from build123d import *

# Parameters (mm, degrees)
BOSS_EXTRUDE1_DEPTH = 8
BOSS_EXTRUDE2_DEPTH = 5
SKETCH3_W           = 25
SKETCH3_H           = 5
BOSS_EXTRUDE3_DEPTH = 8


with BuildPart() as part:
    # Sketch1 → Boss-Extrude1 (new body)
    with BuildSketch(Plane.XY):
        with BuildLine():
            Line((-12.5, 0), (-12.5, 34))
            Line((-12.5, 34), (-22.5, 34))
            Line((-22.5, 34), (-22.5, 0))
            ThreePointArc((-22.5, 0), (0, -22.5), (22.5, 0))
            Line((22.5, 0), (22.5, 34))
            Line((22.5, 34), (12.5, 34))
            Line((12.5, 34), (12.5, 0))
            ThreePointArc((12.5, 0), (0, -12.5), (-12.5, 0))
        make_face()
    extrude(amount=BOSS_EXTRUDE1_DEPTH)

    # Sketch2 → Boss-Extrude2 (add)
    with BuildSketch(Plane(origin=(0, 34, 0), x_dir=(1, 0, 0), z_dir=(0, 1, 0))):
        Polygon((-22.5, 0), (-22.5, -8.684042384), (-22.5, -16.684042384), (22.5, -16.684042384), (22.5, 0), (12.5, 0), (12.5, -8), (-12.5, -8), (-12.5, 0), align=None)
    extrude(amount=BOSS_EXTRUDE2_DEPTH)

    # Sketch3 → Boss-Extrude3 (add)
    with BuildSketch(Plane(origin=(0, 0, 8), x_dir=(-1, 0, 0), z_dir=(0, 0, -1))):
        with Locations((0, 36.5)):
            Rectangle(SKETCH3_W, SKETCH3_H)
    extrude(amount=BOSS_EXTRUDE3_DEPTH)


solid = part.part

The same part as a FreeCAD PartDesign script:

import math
import FreeCAD as App
import Part
import Sketcher
from FreeCAD import Vector

doc = App.newDocument("Part")
params = doc.addObject("Spreadsheet::Sheet", "Params")
for row, (alias, value) in enumerate([
    ("sketch1_radius", "22.5 mm"),
    ("sketch1_radius2", "12.5 mm"),
    ("sketch1_height", "34 mm"),
    ("pad1_length", "8 mm"),
    ("sketch2_width", "45 mm"),
    ("sketch2_width2", "10 mm"),
    ("sketch2_height", "8 mm"),
    ("pad2_length", "5 mm"),
    ("sketch3_width", "25 mm"),
    ("sketch3_height", "5 mm"),
    ("pad3_length", "8 mm"),
], start=1):
    params.set(f"A{row}", alias)
    params.set(f"B{row}", "=" + value)
    params.setAlias(f"B{row}", alias)

body = doc.addObject("PartDesign::Body", "Body")

# Sketch on XY plane
sketch1 = body.newObject("Sketcher::SketchObject", "Sketch")
sketch1.AttachmentSupport = (doc.getObject("XY_Plane"), [""])
sketch1.MapMode = "FlatFace"
sketch1.addGeometry(Part.LineSegment(Vector(-12, 0, 0), Vector(-12, 34, 0)), False)
sketch1.addGeometry(Part.LineSegment(Vector(-12, 34, 0), Vector(-22, 34, 0)), False)
sketch1.addGeometry(Part.LineSegment(Vector(-22, 34, 0), Vector(-22, 0, 0)), False)
sketch1.addGeometry(Part.ArcOfCircle(Part.Circle(Vector(0, 0, 0), Vector(0, 0, 1), 22), math.radians(180), math.radians(360)), False)
sketch1.addGeometry(Part.LineSegment(Vector(22, 0, 0), Vector(22, 34, 0)), False)
sketch1.addGeometry(Part.LineSegment(Vector(22, 34, 0), Vector(12, 34, 0)), False)
sketch1.addGeometry(Part.LineSegment(Vector(12, 34, 0), Vector(12, 0, 0)), False)
sketch1.addGeometry(Part.ArcOfCircle(Part.Circle(Vector(0, 0, 0), Vector(0, 0, 1), 12), math.radians(180), math.radians(360)), False)
sketch1.addConstraint(Sketcher.Constraint("Coincident", 0, 2, 1, 1))
sketch1.addConstraint(Sketcher.Constraint("Coincident", 1, 2, 2, 1))
sketch1.addConstraint(Sketcher.Constraint("Tangent", 2, 2, 3, 1))
sketch1.addConstraint(Sketcher.Constraint("Tangent", 3, 2, 4, 1))
sketch1.addConstraint(Sketcher.Constraint("Coincident", 4, 2, 5, 1))
sketch1.addConstraint(Sketcher.Constraint("Coincident", 5, 2, 6, 1))
sketch1.addConstraint(Sketcher.Constraint("Tangent", 6, 2, 7, 2))
sketch1.addConstraint(Sketcher.Constraint("Tangent", 7, 1, 0, 1))
sketch1.addConstraint(Sketcher.Constraint("Vertical", 0))
sketch1.addConstraint(Sketcher.Constraint("Horizontal", 1))
sketch1.addConstraint(Sketcher.Constraint("Vertical", 2))
sketch1.addConstraint(Sketcher.Constraint("Vertical", 4))
sketch1.addConstraint(Sketcher.Constraint("Horizontal", 5))
sketch1.addConstraint(Sketcher.Constraint("Vertical", 6))
sketch1.addConstraint(Sketcher.Constraint("Coincident", 3, 3, -1, 1))
sketch1.addConstraint(Sketcher.Constraint("Coincident", 7, 3, -1, 1))
sketch1.addConstraint(Sketcher.Constraint("Horizontal", 1, 2, 4, 2))
sketch1.addConstraint(Sketcher.Constraint("Radius", 3, 22.5))
sketch1.addConstraint(Sketcher.Constraint("Radius", 7, 12.5))
sketch1.addConstraint(Sketcher.Constraint("DistanceY", 0, 1, 0, 2, 34.0))
sketch1.setExpression("Constraints[17]", "Params.sketch1_radius")
sketch1.setExpression("Constraints[18]", "Params.sketch1_radius2")
sketch1.setExpression("Constraints[19]", "Params.sketch1_height")
pad1 = body.newObject("PartDesign::Pad", "Pad")
pad1.Profile = sketch1
pad1.setExpression("Length", "Params.pad1_length")

# Sketch on XZ plane
sketch2 = body.newObject("Sketcher::SketchObject", "Sketch001")
sketch2.AttachmentSupport = (doc.getObject("XZ_Plane"), [""])
sketch2.MapMode = "FlatFace"
sketch2.AttachmentOffset = App.Placement(Vector(0, 0, -34), App.Rotation())
sketch2.addGeometry(Part.LineSegment(Vector(-22, 0, 0), Vector(-22, 17, 0)), False)
sketch2.addGeometry(Part.LineSegment(Vector(-22, 17, 0), Vector(22, 17, 0)), False)
sketch2.addGeometry(Part.LineSegment(Vector(22, 17, 0), Vector(22, 0, 0)), False)
sketch2.addGeometry(Part.LineSegment(Vector(22, 0, 0), Vector(12, 0, 0)), False)
sketch2.addGeometry(Part.LineSegment(Vector(12, 0, 0), Vector(12, 8, 0)), False)
sketch2.addGeometry(Part.LineSegment(Vector(12, 8, 0), Vector(-12, 8, 0)), False)
sketch2.addGeometry(Part.LineSegment(Vector(-12, 8, 0), Vector(-12, 0, 0)), False)
sketch2.addGeometry(Part.LineSegment(Vector(-12, 0, 0), Vector(-22, 0, 0)), False)
sketch2.addConstraint(Sketcher.Constraint("Coincident", 0, 2, 1, 1))
sketch2.addConstraint(Sketcher.Constraint("Coincident", 1, 2, 2, 1))
sketch2.addConstraint(Sketcher.Constraint("Coincident", 2, 2, 3, 1))
sketch2.addConstraint(Sketcher.Constraint("Coincident", 3, 2, 4, 1))
sketch2.addConstraint(Sketcher.Constraint("Coincident", 4, 2, 5, 1))
sketch2.addConstraint(Sketcher.Constraint("Coincident", 5, 2, 6, 1))
sketch2.addConstraint(Sketcher.Constraint("Coincident", 6, 2, 7, 1))
sketch2.addConstraint(Sketcher.Constraint("Coincident", 7, 2, 0, 1))
sketch2.addConstraint(Sketcher.Constraint("Vertical", 0))
sketch2.addConstraint(Sketcher.Constraint("Horizontal", 1))
sketch2.addConstraint(Sketcher.Constraint("Vertical", 2))
sketch2.addConstraint(Sketcher.Constraint("Horizontal", 3))
sketch2.addConstraint(Sketcher.Constraint("Vertical", 4))
sketch2.addConstraint(Sketcher.Constraint("Horizontal", 5))
sketch2.addConstraint(Sketcher.Constraint("Vertical", 6))
sketch2.addConstraint(Sketcher.Constraint("Horizontal", 7))
sketch2.addConstraint(Sketcher.Constraint("Symmetric", 3, 2, 6, 2, -1, 1))
sketch2.addConstraint(Sketcher.Constraint("Symmetric", 2, 2, 7, 2, -2))
sketch2.addConstraint(Sketcher.Constraint("DistanceX", 1, 1, 1, 2, 45.0))
sketch2.addConstraint(Sketcher.Constraint("DistanceX", 3, 2, 3, 1, 10.0))
sketch2.addConstraint(Sketcher.Constraint("DistanceY", 4, 1, 4, 2, 8.0))
sketch2.addConstraint(Sketcher.Constraint("DistanceY", 0, 1, 0, 2, 16.684042))
sketch2.setExpression("Constraints[18]", "Params.sketch2_width")
sketch2.setExpression("Constraints[19]", "Params.sketch2_width2")
sketch2.setExpression("Constraints[20]", "Params.sketch2_height")
pad2 = body.newObject("PartDesign::Pad", "Pad001")
pad2.Profile = sketch2
pad2.setExpression("Length", "Params.pad2_length")
pad2.Reversed = True

# Sketch on XY plane
sketch3 = body.newObject("Sketcher::SketchObject", "Sketch002")
sketch3.AttachmentSupport = (doc.getObject("XY_Plane"), [""])
sketch3.MapMode = "FlatFace"
sketch3.AttachmentOffset = App.Placement(Vector(0, 0, 8), App.Rotation())
sketch3.addGeometry(Part.LineSegment(Vector(12, 39, 0), Vector(12, 34, 0)), False)
sketch3.addGeometry(Part.LineSegment(Vector(12, 34, 0), Vector(-12, 34, 0)), False)
sketch3.addGeometry(Part.LineSegment(Vector(-12, 34, 0), Vector(-12, 39, 0)), False)
sketch3.addGeometry(Part.LineSegment(Vector(-12, 39, 0), Vector(12, 39, 0)), False)
sketch3.addConstraint(Sketcher.Constraint("Coincident", 0, 2, 1, 1))
sketch3.addConstraint(Sketcher.Constraint("Coincident", 1, 2, 2, 1))
sketch3.addConstraint(Sketcher.Constraint("Coincident", 2, 2, 3, 1))
sketch3.addConstraint(Sketcher.Constraint("Coincident", 3, 2, 0, 1))
sketch3.addConstraint(Sketcher.Constraint("Vertical", 0))
sketch3.addConstraint(Sketcher.Constraint("Horizontal", 1))
sketch3.addConstraint(Sketcher.Constraint("Vertical", 2))
sketch3.addConstraint(Sketcher.Constraint("Horizontal", 3))
sketch3.addConstraint(Sketcher.Constraint("DistanceX", 1, 2, 1, 1, 25.0))
sketch3.addConstraint(Sketcher.Constraint("DistanceY", 0, 2, 0, 1, 5.0))
sketch3.addConstraint(Sketcher.Constraint("DistanceY", -1, 1, 0, 2, 34.0))
sketch3.addConstraint(Sketcher.Constraint("DistanceX", -1, 1, 0, 2, 12.5))
sketch3.setExpression("Constraints[8]", "Params.sketch3_width")
sketch3.setExpression("Constraints[9]", "Params.sketch3_height")
pad3 = body.newObject("PartDesign::Pad", "Pad002")
pad3.Profile = sketch3
pad3.setExpression("Length", "Params.pad3_length")
pad3.Reversed = True

doc.recompute()
